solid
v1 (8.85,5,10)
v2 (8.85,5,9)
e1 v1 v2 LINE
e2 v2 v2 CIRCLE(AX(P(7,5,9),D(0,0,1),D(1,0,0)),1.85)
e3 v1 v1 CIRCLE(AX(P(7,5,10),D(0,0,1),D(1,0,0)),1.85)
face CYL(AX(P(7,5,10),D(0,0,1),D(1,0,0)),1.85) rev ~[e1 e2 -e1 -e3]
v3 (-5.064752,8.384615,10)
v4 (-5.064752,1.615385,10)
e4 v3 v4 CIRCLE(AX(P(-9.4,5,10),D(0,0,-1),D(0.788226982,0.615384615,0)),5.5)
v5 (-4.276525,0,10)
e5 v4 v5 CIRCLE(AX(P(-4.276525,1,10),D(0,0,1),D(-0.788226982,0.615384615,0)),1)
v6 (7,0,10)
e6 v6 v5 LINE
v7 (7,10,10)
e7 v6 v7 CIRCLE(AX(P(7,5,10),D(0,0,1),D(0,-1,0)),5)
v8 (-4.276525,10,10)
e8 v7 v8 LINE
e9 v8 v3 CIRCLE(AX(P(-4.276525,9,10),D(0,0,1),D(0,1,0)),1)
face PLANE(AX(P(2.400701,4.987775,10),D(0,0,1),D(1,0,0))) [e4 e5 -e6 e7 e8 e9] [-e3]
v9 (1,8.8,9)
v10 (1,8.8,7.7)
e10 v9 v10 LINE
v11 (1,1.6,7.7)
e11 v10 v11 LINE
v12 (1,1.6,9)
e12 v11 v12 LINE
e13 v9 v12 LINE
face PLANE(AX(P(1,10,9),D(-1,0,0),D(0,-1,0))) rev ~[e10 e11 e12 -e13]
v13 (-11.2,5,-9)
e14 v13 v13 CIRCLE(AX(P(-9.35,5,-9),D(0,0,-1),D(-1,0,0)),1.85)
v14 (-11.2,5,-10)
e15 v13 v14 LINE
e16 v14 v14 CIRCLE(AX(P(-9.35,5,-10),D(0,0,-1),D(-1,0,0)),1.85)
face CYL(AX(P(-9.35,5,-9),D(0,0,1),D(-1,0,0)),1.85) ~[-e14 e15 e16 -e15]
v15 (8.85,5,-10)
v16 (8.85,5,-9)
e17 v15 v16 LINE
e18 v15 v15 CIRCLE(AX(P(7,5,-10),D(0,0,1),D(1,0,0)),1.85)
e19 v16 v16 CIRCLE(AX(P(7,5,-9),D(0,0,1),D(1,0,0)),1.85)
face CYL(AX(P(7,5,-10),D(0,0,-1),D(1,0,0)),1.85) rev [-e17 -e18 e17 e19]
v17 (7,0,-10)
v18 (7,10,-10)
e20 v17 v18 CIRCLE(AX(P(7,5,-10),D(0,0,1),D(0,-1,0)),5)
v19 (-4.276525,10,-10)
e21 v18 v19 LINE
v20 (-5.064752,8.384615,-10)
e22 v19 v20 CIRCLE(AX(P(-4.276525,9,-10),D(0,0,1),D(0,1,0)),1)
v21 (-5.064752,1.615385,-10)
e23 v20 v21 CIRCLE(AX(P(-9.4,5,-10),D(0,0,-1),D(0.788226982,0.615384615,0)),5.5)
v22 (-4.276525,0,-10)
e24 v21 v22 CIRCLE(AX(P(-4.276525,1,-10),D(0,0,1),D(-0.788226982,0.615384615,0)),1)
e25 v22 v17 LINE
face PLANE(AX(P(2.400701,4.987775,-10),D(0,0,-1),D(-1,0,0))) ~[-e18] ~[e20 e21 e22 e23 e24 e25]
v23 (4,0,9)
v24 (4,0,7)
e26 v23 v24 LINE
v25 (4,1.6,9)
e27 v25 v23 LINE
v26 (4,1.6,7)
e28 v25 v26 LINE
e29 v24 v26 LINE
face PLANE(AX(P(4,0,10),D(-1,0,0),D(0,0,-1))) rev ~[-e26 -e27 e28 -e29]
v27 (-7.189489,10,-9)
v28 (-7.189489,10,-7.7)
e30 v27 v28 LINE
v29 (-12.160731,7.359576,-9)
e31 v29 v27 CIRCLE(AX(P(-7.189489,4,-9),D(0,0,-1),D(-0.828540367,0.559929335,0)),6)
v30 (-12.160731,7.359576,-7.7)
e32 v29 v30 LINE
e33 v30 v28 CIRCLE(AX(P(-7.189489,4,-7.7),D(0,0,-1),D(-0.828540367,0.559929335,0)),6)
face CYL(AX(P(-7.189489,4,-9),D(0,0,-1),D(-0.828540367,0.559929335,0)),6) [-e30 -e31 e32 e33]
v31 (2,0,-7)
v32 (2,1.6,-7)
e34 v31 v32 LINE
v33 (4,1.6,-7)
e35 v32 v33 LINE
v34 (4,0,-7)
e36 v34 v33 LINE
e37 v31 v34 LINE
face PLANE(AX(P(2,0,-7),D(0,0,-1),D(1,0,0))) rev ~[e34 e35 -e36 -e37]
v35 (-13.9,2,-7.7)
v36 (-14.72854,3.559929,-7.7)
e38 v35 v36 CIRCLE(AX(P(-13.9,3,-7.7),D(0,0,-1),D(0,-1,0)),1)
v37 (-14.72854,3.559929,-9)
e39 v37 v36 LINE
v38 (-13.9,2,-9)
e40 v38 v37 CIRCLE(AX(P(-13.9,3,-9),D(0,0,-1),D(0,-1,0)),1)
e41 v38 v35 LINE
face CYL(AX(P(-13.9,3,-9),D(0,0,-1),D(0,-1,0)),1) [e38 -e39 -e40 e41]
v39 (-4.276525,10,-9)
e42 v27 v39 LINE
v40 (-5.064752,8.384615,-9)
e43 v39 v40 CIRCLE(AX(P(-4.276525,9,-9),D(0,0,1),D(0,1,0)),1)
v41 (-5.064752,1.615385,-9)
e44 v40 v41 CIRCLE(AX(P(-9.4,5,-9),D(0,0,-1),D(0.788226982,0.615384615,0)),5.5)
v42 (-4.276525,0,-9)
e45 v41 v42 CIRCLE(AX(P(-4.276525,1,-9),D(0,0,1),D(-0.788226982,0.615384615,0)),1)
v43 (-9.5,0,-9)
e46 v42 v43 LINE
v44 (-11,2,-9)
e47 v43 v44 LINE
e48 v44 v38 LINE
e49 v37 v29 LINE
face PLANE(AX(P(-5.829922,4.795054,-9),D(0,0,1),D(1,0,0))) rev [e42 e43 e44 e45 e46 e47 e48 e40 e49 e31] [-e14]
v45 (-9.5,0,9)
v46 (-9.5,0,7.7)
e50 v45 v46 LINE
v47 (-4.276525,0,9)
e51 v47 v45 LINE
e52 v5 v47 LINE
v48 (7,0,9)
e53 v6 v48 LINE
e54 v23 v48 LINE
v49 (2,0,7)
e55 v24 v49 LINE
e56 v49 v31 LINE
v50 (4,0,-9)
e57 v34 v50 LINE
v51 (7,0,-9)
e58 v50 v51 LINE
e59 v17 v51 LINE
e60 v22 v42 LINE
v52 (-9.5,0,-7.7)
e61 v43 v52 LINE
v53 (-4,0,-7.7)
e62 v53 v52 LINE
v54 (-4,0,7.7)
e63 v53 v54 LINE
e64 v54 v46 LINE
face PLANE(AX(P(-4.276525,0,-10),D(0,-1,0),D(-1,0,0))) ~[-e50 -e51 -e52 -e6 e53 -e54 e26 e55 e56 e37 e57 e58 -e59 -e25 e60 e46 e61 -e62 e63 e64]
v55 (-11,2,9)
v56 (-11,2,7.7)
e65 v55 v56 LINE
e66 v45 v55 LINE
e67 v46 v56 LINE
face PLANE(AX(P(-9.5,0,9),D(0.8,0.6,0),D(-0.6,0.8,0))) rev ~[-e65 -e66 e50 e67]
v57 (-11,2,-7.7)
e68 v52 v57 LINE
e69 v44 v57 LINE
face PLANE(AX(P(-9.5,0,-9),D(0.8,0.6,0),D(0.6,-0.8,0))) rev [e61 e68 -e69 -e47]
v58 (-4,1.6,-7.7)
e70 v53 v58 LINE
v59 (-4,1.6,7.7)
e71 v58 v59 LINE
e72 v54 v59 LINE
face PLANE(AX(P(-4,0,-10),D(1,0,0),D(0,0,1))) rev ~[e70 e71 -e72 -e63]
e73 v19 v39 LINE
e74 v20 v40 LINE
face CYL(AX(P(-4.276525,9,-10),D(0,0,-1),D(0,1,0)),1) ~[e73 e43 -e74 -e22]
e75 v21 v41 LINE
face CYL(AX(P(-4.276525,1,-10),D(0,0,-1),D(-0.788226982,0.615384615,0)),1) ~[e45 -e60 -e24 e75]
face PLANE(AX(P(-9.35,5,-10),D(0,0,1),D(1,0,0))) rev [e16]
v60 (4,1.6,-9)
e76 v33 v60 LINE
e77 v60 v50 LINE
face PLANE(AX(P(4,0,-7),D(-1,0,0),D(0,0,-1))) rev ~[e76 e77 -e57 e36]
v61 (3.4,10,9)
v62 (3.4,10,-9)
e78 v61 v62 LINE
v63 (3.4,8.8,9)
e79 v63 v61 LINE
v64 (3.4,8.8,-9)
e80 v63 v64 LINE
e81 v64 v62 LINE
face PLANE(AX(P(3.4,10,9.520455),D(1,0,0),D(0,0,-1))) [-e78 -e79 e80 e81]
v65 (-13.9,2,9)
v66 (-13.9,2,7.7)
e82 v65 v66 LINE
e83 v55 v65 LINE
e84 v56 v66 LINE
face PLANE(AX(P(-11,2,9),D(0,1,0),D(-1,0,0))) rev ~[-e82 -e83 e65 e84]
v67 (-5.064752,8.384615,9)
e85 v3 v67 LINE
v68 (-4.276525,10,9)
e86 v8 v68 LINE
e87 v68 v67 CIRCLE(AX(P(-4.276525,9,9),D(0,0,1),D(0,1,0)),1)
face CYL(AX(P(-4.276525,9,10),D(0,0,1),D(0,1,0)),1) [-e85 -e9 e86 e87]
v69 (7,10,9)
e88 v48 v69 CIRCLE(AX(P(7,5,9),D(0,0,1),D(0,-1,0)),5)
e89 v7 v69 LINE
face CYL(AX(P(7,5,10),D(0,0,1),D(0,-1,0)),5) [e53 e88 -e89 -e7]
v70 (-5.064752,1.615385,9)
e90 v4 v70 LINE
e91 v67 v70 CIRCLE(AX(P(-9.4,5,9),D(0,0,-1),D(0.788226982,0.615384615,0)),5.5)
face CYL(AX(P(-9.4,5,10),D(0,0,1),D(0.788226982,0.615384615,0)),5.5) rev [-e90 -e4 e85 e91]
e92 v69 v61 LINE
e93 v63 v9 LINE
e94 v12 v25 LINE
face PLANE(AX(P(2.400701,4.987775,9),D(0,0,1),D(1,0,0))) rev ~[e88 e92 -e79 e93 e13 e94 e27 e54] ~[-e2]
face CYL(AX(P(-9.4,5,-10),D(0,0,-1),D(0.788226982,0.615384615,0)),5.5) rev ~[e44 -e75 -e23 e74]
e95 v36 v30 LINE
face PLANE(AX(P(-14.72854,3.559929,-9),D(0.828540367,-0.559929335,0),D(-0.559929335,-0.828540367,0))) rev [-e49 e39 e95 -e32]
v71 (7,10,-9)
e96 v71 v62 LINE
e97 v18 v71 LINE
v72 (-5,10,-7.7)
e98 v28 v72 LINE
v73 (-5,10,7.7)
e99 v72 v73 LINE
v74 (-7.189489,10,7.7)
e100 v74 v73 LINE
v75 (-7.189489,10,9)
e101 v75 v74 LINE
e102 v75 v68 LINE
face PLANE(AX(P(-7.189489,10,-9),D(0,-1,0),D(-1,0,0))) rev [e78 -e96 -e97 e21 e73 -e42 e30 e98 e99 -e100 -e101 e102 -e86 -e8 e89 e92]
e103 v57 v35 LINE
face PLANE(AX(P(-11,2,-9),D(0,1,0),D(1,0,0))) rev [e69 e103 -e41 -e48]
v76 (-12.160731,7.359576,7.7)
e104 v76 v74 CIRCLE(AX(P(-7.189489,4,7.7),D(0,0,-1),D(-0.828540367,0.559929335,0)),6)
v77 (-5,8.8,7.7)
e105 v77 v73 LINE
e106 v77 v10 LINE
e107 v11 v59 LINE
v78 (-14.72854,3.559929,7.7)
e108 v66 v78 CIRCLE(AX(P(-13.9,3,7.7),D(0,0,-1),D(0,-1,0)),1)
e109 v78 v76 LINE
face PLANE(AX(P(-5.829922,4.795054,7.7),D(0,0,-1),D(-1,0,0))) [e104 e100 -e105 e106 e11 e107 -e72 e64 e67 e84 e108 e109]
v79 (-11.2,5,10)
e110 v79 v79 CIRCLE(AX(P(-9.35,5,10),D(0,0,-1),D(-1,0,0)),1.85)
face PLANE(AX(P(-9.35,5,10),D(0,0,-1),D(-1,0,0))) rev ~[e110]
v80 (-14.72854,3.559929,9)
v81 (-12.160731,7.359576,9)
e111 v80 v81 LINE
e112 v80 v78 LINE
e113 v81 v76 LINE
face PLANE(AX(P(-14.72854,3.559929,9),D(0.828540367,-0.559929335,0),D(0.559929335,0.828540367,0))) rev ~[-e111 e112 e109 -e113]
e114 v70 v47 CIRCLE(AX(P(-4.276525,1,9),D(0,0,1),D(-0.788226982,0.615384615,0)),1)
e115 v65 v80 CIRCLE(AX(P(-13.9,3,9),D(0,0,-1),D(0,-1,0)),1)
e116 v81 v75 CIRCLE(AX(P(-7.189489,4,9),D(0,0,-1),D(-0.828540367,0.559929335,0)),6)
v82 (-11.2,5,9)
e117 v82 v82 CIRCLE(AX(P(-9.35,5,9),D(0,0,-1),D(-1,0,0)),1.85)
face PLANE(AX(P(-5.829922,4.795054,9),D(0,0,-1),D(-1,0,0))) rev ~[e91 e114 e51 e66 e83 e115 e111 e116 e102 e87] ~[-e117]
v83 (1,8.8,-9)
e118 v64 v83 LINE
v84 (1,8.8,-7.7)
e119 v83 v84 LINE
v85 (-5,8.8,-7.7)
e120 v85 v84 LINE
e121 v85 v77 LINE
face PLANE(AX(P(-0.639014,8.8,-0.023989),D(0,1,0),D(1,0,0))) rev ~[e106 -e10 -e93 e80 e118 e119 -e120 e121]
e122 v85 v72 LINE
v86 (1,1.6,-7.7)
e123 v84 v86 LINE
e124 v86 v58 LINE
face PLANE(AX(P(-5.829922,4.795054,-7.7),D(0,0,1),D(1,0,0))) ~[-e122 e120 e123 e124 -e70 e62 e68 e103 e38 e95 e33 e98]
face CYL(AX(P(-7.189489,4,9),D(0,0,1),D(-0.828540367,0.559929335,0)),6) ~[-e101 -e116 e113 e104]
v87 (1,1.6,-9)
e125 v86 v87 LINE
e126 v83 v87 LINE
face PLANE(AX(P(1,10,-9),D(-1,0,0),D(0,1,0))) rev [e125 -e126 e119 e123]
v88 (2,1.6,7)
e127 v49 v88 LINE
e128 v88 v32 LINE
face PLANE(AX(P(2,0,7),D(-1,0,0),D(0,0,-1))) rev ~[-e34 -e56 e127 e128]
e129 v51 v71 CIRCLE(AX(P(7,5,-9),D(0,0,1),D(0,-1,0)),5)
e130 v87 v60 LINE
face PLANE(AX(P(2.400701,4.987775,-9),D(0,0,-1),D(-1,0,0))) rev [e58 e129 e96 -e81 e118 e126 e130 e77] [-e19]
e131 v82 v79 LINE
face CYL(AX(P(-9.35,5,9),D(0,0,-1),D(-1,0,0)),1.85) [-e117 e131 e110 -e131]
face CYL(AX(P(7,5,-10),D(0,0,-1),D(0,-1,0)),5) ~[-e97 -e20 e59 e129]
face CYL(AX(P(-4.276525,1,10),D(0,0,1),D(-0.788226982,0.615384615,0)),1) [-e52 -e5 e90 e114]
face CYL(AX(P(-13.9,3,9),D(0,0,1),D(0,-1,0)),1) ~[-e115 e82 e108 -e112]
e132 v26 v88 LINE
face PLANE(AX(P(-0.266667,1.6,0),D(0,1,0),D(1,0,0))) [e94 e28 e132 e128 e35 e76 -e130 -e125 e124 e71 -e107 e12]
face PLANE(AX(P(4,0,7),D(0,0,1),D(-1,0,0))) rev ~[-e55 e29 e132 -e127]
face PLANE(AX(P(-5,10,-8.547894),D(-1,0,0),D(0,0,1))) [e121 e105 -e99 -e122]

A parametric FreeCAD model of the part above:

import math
import FreeCAD as App
import Part
import Sketcher

V = App.Vector


def add_polygon(sketch, points):
    """Adds a closed chain of lines whose ends are joined by coincident constraints."""
    first, n = sketch.GeometryCount, len(points)
    for a, b in zip(points, points[1:] + points[:1]):
        sketch.addGeometry(Part.LineSegment(App.Vector(*a, 0), App.Vector(*b, 0)), False)
    for i in range(n):
        sketch.addConstraint(Sketcher.Constraint("Coincident", first + i, 2, first + (i + 1) % n, 1))

doc = App.newDocument("Part")
body = doc.addObject("PartDesign::Body", "Body")

sketch1 = body.newObject("Sketcher::SketchObject", "Sketch")
sketch1.AttachmentSupport = (doc.getObject("XZ_Plane"), [""])
sketch1.MapMode = "FlatFace"
add_polygon(sketch1, [(4, -7), (4, -10), (-4, -10), (-4, 10), (4, 10), (4, 7), (2, 7), (2, -7)])
sketch1.addConstraint([
    Sketcher.Constraint("Vertical", 0),
    Sketcher.Constraint("Horizontal", 1),
    Sketcher.Constraint("Vertical", 2),
    Sketcher.Constraint("Horizontal", 3),
    Sketcher.Constraint("Vertical", 4),
    Sketcher.Constraint("Horizontal", 5),
    Sketcher.Constraint("Vertical", 6),
    Sketcher.Constraint("Horizontal", 7),
    Sketcher.Constraint("Symmetric", 0, 2, 2, 2, -1, 1),
    Sketcher.Constraint("Symmetric", 4, 2, 7, 2, -1),
    Sketcher.Constraint("DistanceX", 1, 2, 1, 1, 8.0),
    Sketcher.Constraint("DistanceX", 5, 2, 5, 1, 2.0),
    Sketcher.Constraint("DistanceY", 0, 2, 0, 1, 3.0),
    Sketcher.Constraint("DistanceY", 2, 1, 2, 2, 20.0),
])
pad1 = body.newObject("PartDesign::Pad", "Pad")
pad1.Profile = sketch1
pad1.Length = 1.6
pad1.Reversed = True

sketch2 = body.newObject("Sketcher::SketchObject", "Sketch001")
sketch2.AttachmentSupport = (doc.getObject("XY_Plane"), [""])
sketch2.MapMode = "FlatFace"
sketch2.AttachmentOffset = App.Placement(V(0, 0, 10), App.Rotation())
sketch2.addGeometry([
    Part.ArcOfCircle(Part.Circle(V(-4.28, 1, 0), V(0, 0, 1), 1), math.radians(142), math.radians(270)),
    Part.LineSegment(V(-4.28, 0, 0), V(-4, 0, 0)),
    Part.LineSegment(V(-4, 0, 0), V(-4, 1.6, 0)),
    Part.LineSegment(V(-4, 1.6, 0), V(4, 1.6, 0)),
    Part.LineSegment(V(4, 1.6, 0), V(4, 0, 0)),
    Part.LineSegment(V(4, 0, 0), V(7, 0, 0)),
    Part.ArcOfCircle(Part.Circle(V(7, 5, 0), V(0, 0, 1), 5), math.radians(-90), math.radians(90)),
    Part.LineSegment(V(7, 10, 0), V(-4.28, 10, 0)),
    Part.ArcOfCircle(Part.Circle(V(-4.28, 9, 0), V(0, 0, 1), 1), math.radians(90), math.radians(218)),
    Part.ArcOfCircle(Part.Circle(V(-9.4, 5, 0), V(0, 0, 1), 5.5), math.radians(-38), math.radians(38)),
    Part.Circle(V(7, 5, 0), V(0, 0, 1), 1.85),
], False)
sketch2.addConstraint([
    Sketcher.Constraint("Tangent", 0, 2, 1, 1),
    Sketcher.Constraint("Coincident", 1, 2, 2, 1),
    Sketcher.Constraint("Coincident", 2, 2, 3, 1),
    Sketcher.Constraint("Coincident", 3, 2, 4, 1),
    Sketcher.Constraint("Coincident", 4, 2, 5, 1),
    Sketcher.Constraint("Tangent", 5, 2, 6, 1),
    Sketcher.Constraint("Tangent", 6, 2, 7, 1),
    Sketcher.Constraint("Tangent", 7, 2, 8, 1),
    Sketcher.Constraint("Tangent", 8, 2, 9, 2),
    Sketcher.Constraint("Tangent", 9, 1, 0, 1),
    Sketcher.Constraint("Horizontal", 1),
    Sketcher.Constraint("Vertical", 2),
    Sketcher.Constraint("Horizontal", 3),
    Sketcher.Constraint("Vertical", 4),
    Sketcher.Constraint("Horizontal", 5),
    Sketcher.Constraint("Horizontal", 7),
    Sketcher.Constraint("Coincident", 10, 3, 6, 3),
    Sketcher.Constraint("Equal", 0, 8),
    Sketcher.Constraint("Symmetric", 1, 2, 4, 2, -1, 1),
    Sketcher.Constraint("PointOnObject", 0, 2, -1),
    Sketcher.Constraint("Horizontal", 6, 3, 9, 3),
    Sketcher.Constraint("Radius", 0, 1.0),
    Sketcher.Constraint("Radius", 6, 5.0),
    Sketcher.Constraint("Diameter", 10, 3.7),
    Sketcher.Constraint("Radius", 9, 5.5),
    Sketcher.Constraint("DistanceX", 3, 1, 3, 2, 8.0),
    Sketcher.Constraint("DistanceX", 5, 1, 5, 2, 3.0),
    Sketcher.Constraint("DistanceY", 2, 1, 2, 2, 1.6),
    Sketcher.Constraint("DistanceX", 9, 3, -1, 1, 9.4),
])
pad2 = body.newObject("PartDesign::Pad", "Pad001")
pad2.Profile = sketch2
pad2.Length = 1
pad2.Reversed = True

sketch3 = body.newObject("Sketcher::SketchObject", "Sketch002")
sketch3.AttachmentSupport = (doc.getObject("XY_Plane"), [""])
sketch3.MapMode = "FlatFace"
sketch3.AttachmentOffset = App.Placement(V(0, 0, 9), App.Rotation())
sketch3.addGeometry([
    Part.LineSegment(V(1, 10, 0), V(1, 0, 0)),
    Part.LineSegment(V(1, 0, 0), V(-9.5, 0, 0)),
    Part.LineSegment(V(-9.5, 0, 0), V(-11, 2, 0)),
    Part.LineSegment(V(-11, 2, 0), V(-13.9, 2, 0)),
    Part.ArcOfCircle(Part.Circle(V(-13.9, 3, 0), V(0, 0, 1), 1), math.radians(146), math.radians(270)),
    Part.LineSegment(V(-14.7, 3.6, 0), V(-12.2, 7.4, 0)),
    Part.ArcOfCircle(Part.Circle(V(-7.2, 4, 0), V(0, 0, 1), 6), math.radians(90), math.radians(146)),
    Part.LineSegment(V(-7.2, 10, 0), V(1, 10, 0)),
], False)
sketch3.addConstraint([
    Sketcher.Constraint("Coincident", 0, 2, 1, 1),
    Sketcher.Constraint("Coincident", 1, 2, 2, 1),
    Sketcher.Constraint("Coincident", 2, 2, 3, 1),
    Sketcher.Constraint("Tangent", 3, 2, 4, 2),
    Sketcher.Constraint("Tangent", 4, 1, 5, 1),
    Sketcher.Constraint("Tangent", 5, 2, 6, 2),
    Sketcher.Constraint("Tangent", 6, 1, 7, 1),
    Sketcher.Constraint("Coincident", 7, 2, 0, 1),
    Sketcher.Constraint("Vertical", 0),
    Sketcher.Constraint("Horizontal", 1),
    Sketcher.Constraint("Horizontal", 3),
    Sketcher.Constraint("Horizontal", 7),
    Sketcher.Constraint("PointOnObject", 0, 2, -1),
    Sketcher.Constraint("Radius", 4, 1.0),
    Sketcher.Constraint("Radius", 6, 6.0),
    Sketcher.Constraint("DistanceY", 0, 2, 0, 1, 10.0),
    Sketcher.Constraint("DistanceX", 1, 2, 1, 1, 10.5),
    Sketcher.Constraint("DistanceX", 3, 2, 3, 1, 2.9),
    Sketcher.Constraint("DistanceY", -1, 1, 4, 3, 3.0),
    Sketcher.Constraint("DistanceX", -1, 1, 0, 2, 1.0),
    Sketcher.Constraint("DistanceX", 2, 2, -1, 1, 11.0),
    Sketcher.Constraint("DistanceX", 7, 1, 7, 2, 8.189489),
])
pad3 = body.newObject("PartDesign::Pad", "Pad002")
pad3.Profile = sketch3
pad3.Length = 1.3
pad3.Reversed = True

sketch4 = body.newObject("Sketcher::SketchObject", "Sketch003")
sketch4.AttachmentSupport = (doc.getObject("XY_Plane"), [""])
sketch4.MapMode = "FlatFace"
sketch4.AttachmentOffset = App.Placement(V(0, 0, 9), App.Rotation())
sketch4.addGeometry(Part.Circle(V(-9.3, 5, 0), V(0, 0, 1), 1.9), False)
sketch4.addConstraint([
    Sketcher.Constraint("Diameter", 0, 3.7),
    Sketcher.Constraint("DistanceY", -1, 1, 0, 3, 5.0),
    Sketcher.Constraint("DistanceX", 0, 3, -1, 1, 9.35),
])
pad4 = body.newObject("PartDesign::Pad", "Pad003")
pad4.Profile = sketch4
pad4.Length = 1
doc.recompute()

mirrored = body.newObject("PartDesign::Mirrored", "Mirrored")
mirrored.Originals = [pad2, pad3, pad4]
mirrored.MirrorPlane = (doc.getObject("XY_Plane"), [""])
body.Tip = mirrored

sketch5 = body.newObject("Sketcher::SketchObject", "Sketch004")
sketch5.AttachmentSupport = (doc.getObject("XZ_Plane"), [""])
sketch5.MapMode = "FlatFace"
sketch5.AttachmentOffset = App.Placement(V(0, 0, -10), App.Rotation())
add_polygon(sketch5, [(-5, -9), (-5, 9), (3, 10), (3, -10)])
sketch5.addConstraint([
    Sketcher.Constraint("Vertical", 0),
    Sketcher.Constraint("Vertical", 2),
    Sketcher.Constraint("DistanceX", 0, 2, -1, 1, 5.0),
    Sketcher.Constraint("DistanceX", -1, 1, 1, 2, 3.4),
    Sketcher.Constraint("DistanceY", 0, 1, 0, 2, 17.073596),
    Sketcher.Constraint("DistanceY", 2, 2, 2, 1, 19.109135),
    Sketcher.Constraint("DistanceY", 2, 2, -1, 1, 9.588681),
    Sketcher.Constraint("DistanceY", 0, 2, 1, 2, 0.994752),
])
pad5 = body.newObject("PartDesign::Pad", "Pad004")
pad5.Profile = sketch5
pad5.Length = 1.2

doc.recompute()
